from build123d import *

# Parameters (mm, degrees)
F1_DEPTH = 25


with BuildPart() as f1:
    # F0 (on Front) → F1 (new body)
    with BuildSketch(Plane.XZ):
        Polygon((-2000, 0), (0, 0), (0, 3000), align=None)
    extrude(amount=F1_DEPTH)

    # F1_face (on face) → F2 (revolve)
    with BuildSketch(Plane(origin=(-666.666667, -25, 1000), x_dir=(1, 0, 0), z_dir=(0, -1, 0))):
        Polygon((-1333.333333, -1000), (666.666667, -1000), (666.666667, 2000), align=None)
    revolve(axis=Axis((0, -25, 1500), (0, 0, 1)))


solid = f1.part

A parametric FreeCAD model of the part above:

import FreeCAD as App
import Part
import Sketcher

V = App.Vector
Q = App.Units.Quantity

doc = App.newDocument("Part")
params = doc.addObject("Spreadsheet::Sheet", "Params")
for row, (alias, value) in enumerate([
    ("sketch1_width", "2000 mm"),
    ("sketch1_height", "3000 mm"),
    ("pad1_length", "25 mm"),
    ("sketch2_width", "2000 mm"),
    ("sketch2_height", "3000 mm"),
    ("revolution_angle", "360 deg"),
], start=1):
    params.set(f"A{row}", alias)
    params.set(f"B{row}", "=" + value)
    params.setAlias(f"B{row}", alias)

body = doc.addObject("PartDesign::Body", "Body")

sketch1 = body.newObject("Sketcher::SketchObject", "Sketch")
sketch1.AttachmentSupport = (doc.getObject("XZ_Plane"), [""])
sketch1.MapMode = "FlatFace"
sketch1.addGeometry(Part.LineSegment(V(-2000, 0, 0), V(0, 0, 0)), False)
sketch1.addGeometry(Part.LineSegment(V(0, 0, 0), V(0, 3000, 0)), False)
sketch1.addGeometry(Part.LineSegment(V(0, 3000, 0), V(-2000, 0, 0)), False)
sketch1.addConstraint(Sketcher.Constraint("Coincident", 0, 2, 1, 1))
sketch1.addConstraint(Sketcher.Constraint("Coincident", 1, 2, 2, 1))
sketch1.addConstraint(Sketcher.Constraint("Coincident", 2, 2, 0, 1))
sketch1.addConstraint(Sketcher.Constraint("Horizontal", 0))
sketch1.addConstraint(Sketcher.Constraint("Vertical", 1))
sketch1.addConstraint(Sketcher.Constraint("Coincident", 0, 2, -1, 1))
sketch1.addConstraint(Sketcher.Constraint("DistanceX", 0, 1, 0, 2, Q("2000 mm")))
sketch1.addConstraint(Sketcher.Constraint("DistanceY", 1, 1, 1, 2, Q("3000 mm")))
sketch1.setExpression("Constraints[6]", "Params.sketch1_width")
sketch1.setExpression("Constraints[7]", "Params.sketch1_height")
pad1 = body.newObject("PartDesign::Pad", "Pad")
pad1.Profile = sketch1
pad1.setExpression("Length", "Params.pad1_length")

sketch2 = body.newObject("Sketcher::SketchObject", "Sketch001")
sketch2.AttachmentSupport = (doc.getObject("XZ_Plane"), [""])
sketch2.MapMode = "FlatFace"
sketch2.AttachmentOffset = App.Placement(V(0, 0, 25), App.Rotation())
sketch2.addGeometry(Part.LineSegment(V(-2000, 0, 0), V(0, 0, 0)), False)
sketch2.addGeometry(Part.LineSegment(V(0, 0, 0), V(0, 3000, 0)), False)
sketch2.addGeometry(Part.LineSegment(V(0, 3000, 0), V(-2000, 0, 0)), False)
sketch2.addConstraint(Sketcher.Constraint("Coincident", 0, 2, 1, 1))
sketch2.addConstraint(Sketcher.Constraint("Coincident", 1, 2, 2, 1))
sketch2.addConstraint(Sketcher.Constraint("Coincident", 2, 2, 0, 1))
sketch2.addConstraint(Sketcher.Constraint("Horizontal", 0))
sketch2.addConstraint(Sketcher.Constraint("Vertical", 1))
sketch2.addConstraint(Sketcher.Constraint("Coincident", 0, 2, -1, 1))
sketch2.addConstraint(Sketcher.Constraint("DistanceX", 0, 1, 0, 2, Q("2000 mm")))
sketch2.addConstraint(Sketcher.Constraint("DistanceY", 1, 1, 1, 2, Q("3000 mm")))
sketch2.setExpression("Constraints[6]", "Params.sketch2_width")
sketch2.setExpression("Constraints[7]", "Params.sketch2_height")
revolution = body.newObject("PartDesign::Revolution", "Revolution")
revolution.Profile = sketch2
revolution.ReferenceAxis = (sketch2, ["V_Axis"])
revolution.setExpression("Angle", "Params.revolution_angle")

doc.recompute()
